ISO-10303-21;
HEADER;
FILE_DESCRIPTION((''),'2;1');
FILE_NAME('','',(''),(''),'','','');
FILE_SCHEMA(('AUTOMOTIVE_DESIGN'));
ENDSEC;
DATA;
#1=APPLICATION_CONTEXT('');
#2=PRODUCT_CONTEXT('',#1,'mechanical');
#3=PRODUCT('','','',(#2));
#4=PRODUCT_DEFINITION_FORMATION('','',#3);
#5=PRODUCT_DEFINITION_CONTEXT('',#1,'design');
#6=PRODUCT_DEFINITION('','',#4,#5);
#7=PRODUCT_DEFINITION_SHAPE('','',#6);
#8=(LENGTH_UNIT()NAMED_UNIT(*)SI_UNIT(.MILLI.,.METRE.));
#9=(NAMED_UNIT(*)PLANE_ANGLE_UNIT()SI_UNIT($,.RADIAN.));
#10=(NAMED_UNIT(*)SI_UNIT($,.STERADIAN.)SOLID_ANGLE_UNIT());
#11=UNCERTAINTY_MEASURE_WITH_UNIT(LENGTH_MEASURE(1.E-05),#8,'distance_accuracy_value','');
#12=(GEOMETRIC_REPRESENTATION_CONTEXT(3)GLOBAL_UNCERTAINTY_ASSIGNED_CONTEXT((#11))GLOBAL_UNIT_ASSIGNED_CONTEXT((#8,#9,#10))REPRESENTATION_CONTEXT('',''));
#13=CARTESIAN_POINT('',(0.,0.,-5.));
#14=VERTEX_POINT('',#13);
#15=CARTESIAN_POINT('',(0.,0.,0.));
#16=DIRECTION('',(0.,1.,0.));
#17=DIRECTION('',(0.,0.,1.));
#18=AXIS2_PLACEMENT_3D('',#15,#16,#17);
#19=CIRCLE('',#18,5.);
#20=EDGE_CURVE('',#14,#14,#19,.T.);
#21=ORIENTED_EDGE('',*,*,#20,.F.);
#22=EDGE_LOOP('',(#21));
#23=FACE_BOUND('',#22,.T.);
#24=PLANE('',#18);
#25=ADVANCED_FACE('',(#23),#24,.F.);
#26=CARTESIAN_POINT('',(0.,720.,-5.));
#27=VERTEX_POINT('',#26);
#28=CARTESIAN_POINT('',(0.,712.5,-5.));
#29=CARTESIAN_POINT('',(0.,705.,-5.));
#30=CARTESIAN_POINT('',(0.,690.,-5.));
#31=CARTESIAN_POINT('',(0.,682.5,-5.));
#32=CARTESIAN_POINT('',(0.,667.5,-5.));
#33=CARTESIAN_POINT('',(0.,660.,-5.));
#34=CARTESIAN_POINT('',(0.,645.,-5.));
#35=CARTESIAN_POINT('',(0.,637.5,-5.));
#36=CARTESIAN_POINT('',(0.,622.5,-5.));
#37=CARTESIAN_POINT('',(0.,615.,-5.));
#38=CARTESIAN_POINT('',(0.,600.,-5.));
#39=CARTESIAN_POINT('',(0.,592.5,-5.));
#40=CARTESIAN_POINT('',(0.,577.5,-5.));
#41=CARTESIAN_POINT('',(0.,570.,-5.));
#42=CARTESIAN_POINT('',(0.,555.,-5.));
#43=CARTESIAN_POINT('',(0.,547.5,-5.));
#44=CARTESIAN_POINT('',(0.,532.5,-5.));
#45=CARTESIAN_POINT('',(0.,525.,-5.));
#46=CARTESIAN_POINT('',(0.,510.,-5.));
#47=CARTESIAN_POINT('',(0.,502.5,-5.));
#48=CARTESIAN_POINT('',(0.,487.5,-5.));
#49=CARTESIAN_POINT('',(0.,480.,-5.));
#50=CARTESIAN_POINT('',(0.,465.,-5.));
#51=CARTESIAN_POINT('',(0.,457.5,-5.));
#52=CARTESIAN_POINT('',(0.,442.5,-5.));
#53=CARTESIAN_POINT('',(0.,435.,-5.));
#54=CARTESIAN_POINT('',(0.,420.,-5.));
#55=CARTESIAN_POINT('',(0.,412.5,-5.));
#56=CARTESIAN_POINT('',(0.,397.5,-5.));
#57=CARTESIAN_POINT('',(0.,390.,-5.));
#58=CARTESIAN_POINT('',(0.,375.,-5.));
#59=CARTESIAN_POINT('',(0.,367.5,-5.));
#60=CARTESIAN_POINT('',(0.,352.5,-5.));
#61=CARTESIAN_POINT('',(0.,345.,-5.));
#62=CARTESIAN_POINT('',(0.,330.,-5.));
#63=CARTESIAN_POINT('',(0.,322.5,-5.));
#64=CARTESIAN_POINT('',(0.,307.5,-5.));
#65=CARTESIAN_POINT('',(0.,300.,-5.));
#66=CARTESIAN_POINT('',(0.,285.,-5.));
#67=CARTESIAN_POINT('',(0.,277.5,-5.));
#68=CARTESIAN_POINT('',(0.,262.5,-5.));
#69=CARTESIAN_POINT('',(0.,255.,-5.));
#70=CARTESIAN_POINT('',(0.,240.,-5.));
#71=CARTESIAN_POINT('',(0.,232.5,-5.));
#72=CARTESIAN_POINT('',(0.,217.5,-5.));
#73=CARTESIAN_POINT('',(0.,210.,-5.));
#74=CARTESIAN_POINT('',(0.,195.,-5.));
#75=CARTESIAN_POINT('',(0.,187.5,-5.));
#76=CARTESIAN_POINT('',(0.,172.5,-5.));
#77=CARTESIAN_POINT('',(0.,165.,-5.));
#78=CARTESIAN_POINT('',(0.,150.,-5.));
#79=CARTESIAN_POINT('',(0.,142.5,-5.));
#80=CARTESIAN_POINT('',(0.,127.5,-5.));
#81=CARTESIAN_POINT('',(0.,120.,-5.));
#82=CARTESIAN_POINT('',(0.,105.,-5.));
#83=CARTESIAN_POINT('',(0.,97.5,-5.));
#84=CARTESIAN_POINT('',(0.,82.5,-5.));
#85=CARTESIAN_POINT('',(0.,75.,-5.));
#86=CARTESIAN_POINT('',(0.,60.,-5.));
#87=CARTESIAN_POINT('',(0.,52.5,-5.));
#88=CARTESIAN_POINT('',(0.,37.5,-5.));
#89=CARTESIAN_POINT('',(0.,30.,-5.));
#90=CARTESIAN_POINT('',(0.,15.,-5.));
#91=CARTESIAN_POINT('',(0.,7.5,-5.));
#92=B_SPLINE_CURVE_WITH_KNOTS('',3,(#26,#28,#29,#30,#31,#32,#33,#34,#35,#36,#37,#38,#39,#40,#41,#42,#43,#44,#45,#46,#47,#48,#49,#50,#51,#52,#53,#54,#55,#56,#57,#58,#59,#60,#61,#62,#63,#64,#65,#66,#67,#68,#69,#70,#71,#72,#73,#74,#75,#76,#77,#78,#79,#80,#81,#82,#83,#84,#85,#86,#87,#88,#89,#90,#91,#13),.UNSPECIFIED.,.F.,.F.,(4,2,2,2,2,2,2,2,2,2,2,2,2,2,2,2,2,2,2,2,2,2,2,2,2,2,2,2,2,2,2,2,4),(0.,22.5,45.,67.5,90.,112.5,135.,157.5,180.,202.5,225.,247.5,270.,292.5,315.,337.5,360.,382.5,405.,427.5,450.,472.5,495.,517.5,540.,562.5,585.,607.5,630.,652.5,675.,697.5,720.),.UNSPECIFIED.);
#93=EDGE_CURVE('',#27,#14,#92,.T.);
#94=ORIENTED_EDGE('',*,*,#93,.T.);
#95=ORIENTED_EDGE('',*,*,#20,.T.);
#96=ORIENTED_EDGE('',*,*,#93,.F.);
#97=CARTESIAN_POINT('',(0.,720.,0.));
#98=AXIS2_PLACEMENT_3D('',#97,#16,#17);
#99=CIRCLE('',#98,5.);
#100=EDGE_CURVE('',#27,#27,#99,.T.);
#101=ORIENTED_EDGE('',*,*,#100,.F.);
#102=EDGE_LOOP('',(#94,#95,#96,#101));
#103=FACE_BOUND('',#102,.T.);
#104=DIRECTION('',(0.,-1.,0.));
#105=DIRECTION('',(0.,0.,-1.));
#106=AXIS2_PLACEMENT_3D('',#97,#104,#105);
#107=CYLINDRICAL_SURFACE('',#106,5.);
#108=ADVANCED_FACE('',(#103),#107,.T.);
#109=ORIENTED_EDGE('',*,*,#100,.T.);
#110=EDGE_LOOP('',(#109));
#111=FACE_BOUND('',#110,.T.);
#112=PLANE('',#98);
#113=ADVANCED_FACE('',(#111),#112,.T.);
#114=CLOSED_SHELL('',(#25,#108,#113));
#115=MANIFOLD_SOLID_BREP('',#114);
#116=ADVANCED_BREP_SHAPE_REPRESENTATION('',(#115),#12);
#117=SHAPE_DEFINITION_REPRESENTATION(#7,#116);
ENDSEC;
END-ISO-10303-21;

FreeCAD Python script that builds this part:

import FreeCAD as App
import Part
import Sketcher
from FreeCAD import Vector

doc = App.newDocument("Part")
params = doc.addObject("Spreadsheet::Sheet", "Params")
for row, (alias, value) in enumerate([
    ("sketch1_diameter", "10 mm"),
    ("pad1_length", "720 mm"),
], start=1):
    params.set(f"A{row}", alias)
    params.set(f"B{row}", "=" + value)
    params.setAlias(f"B{row}", alias)

body = doc.addObject("PartDesign::Body", "Body")

# Sketch on XZ plane
sketch1 = doc.addObject("Sketcher::SketchObject", "Sketch")
body.addObject(sketch1)
sketch1.AttachmentSupport = (doc.XZ_Plane, [""])
sketch1.MapMode = "FlatFace"
sketch1.addGeometry(Part.Circle(Vector(0, 0, 0), Vector(0, 0, 1), 5), False)
sketch1.addConstraint([
    Sketcher.Constraint("Coincident", 0, 3, -1, 1),
    Sketcher.Constraint("Diameter", 0, 10.0),
])
sketch1.setExpression("Constraints[1]", "Params.sketch1_diameter")
pad1 = doc.addObject("PartDesign::Pad", "Pad")
body.addObject(pad1)
pad1.Profile = sketch1
pad1.setExpression("Length", "Params.pad1_length")
pad1.Reversed = True

doc.recompute()
